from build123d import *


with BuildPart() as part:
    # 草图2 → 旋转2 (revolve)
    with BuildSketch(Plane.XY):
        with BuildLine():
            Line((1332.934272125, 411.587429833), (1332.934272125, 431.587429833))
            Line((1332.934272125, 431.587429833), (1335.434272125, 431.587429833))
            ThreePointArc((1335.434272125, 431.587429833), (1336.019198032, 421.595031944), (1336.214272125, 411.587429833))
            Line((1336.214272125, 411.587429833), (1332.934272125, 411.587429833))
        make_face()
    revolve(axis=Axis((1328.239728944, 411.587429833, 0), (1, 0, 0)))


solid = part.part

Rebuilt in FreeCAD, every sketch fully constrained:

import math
import FreeCAD as App
import Part
import Sketcher
Q = App.Units.Quantity

doc = App.newDocument("Part")
body = doc.addObject("PartDesign::Body", "Body")

sketch1 = doc.addObject("Sketcher::SketchObject", "Sketch")
body.addObject(sketch1)
sketch1.AttachmentSupport = (doc.XY_Plane, [""])
sketch1.MapMode = "FlatFace"
sketch1.addGeometry(Part.LineSegment(App.Vector(1332.9, 431.6, 0), App.Vector(1332.9, 411.6, 0)), False)
sketch1.addGeometry(Part.LineSegment(App.Vector(1332.9, 411.6, 0), App.Vector(1336.2, 411.6, 0)), False)
sketch1.addGeometry(Part.ArcOfCircle(Part.Circle(App.Vector(1079.4, 411.6, 0), App.Vector(0, 0, 1), 256.8), math.radians(0), math.radians(4.47)), False)
sketch1.addGeometry(Part.LineSegment(App.Vector(1335.4, 431.6, 0), App.Vector(1332.9, 431.6, 0)), False)
sketch1.addGeometry(Part.LineSegment(App.Vector(1079.4, 411.6, 0), App.Vector(1336.2, 411.6, 0)), True)
sketch1.addConstraint(Sketcher.Constraint("Coincident", 0, 2, 1, 1))
sketch1.addConstraint(Sketcher.Constraint("Coincident", 1, 2, 2, 1))
sketch1.addConstraint(Sketcher.Constraint("Coincident", 2, 2, 3, 1))
sketch1.addConstraint(Sketcher.Constraint("Coincident", 3, 2, 0, 1))
sketch1.addConstraint(Sketcher.Constraint("Vertical", 0))
sketch1.addConstraint(Sketcher.Constraint("Horizontal", 1))
sketch1.addConstraint(Sketcher.Constraint("Horizontal", 3))
sketch1.addConstraint(Sketcher.Constraint("Horizontal", 4))
sketch1.addConstraint(Sketcher.Constraint("Coincident", 4, 1, 2, 3))
sketch1.addConstraint(Sketcher.Constraint("Coincident", 4, 2, 1, 2))
sketch1.addConstraint(Sketcher.Constraint("DistanceY", 0, 2, 0, 1, Q("20 mm")))
sketch1.addConstraint(Sketcher.Constraint("DistanceX", 3, 2, 3, 1, Q("2.5 mm")))
sketch1.addConstraint(Sketcher.Constraint("Radius", 2, Q("256.800257 mm")))
sketch1.addConstraint(Sketcher.Constraint("DistanceY", -1, 1, 2, 3, Q("411.58743 mm")))
sketch1.addConstraint(Sketcher.Constraint("DistanceX", -1, 1, 2, 3, Q("1079.414015 mm")))
revolution = doc.addObject("PartDesign::Revolution", "Revolution")
body.addObject(revolution)
revolution.Profile = sketch1
revolution.ReferenceAxis = (sketch1, ["Axis0"])
revolution.Angle = 360

doc.recompute()
